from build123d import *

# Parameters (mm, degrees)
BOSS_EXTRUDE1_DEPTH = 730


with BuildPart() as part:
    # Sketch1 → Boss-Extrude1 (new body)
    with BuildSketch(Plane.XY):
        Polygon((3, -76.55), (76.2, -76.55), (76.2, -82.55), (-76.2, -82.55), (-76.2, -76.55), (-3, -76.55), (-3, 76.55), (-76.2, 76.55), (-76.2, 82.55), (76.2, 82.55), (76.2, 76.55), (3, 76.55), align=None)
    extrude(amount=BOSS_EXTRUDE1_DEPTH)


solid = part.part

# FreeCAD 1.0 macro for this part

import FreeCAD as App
import Part
import Sketcher

V = App.Vector
Q = App.Units.Quantity


def add_polygon(sketch, points):
    """Adds a closed chain of lines whose ends are joined by coincident constraints."""
    first, n = sketch.GeometryCount, len(points)
    for a, b in zip(points, points[1:] + points[:1]):
        sketch.addGeometry(Part.LineSegment(App.Vector(*a, 0), App.Vector(*b, 0)), False)
    for i in range(n):
        sketch.addConstraint(Sketcher.Constraint("Coincident", first + i, 2, first + (i + 1) % n, 1))

doc = App.newDocument("Part")
body = doc.addObject("PartDesign::Body", "Body")

# Sketch on XY plane
sketch1 = body.newObject("Sketcher::SketchObject", "Sketch")
sketch1.AttachmentSupport = (doc.getObject("XY_Plane"), [""])
sketch1.MapMode = "FlatFace"
add_polygon(sketch1, [(76.2, -76.55), (3, -76.55), (3, 76.55), (76.2, 76.55), (76.2, 82.55), (-76.2, 82.55), (-76.2, 76.55), (-3, 76.55), (-3, -76.55), (-76.2, -76.55), (-76.2, -82.55), (76.2, -82.55)])  # lines 0-11
sketch1.addConstraint([
    Sketcher.Constraint("Horizontal", 0),
    Sketcher.Constraint("Vertical", 1),
    Sketcher.Constraint("Horizontal", 2),
    Sketcher.Constraint("Vertical", 3),
    Sketcher.Constraint("Horizontal", 4),
    Sketcher.Constraint("Vertical", 5),
    Sketcher.Constraint("Horizontal", 6),
    Sketcher.Constraint("Vertical", 7),
    Sketcher.Constraint("Horizontal", 8),
    Sketcher.Constraint("Vertical", 9),
    Sketcher.Constraint("Horizontal", 10),
    Sketcher.Constraint("Vertical", 11),
    Sketcher.Constraint("Symmetric", 0, 2, 6, 2, -1, 1),
    Sketcher.Constraint("Symmetric", 2, 2, 8, 2, -1, 1),
    Sketcher.Constraint("Symmetric", 4, 2, 10, 2, -1, 1),
    Sketcher.Constraint("Symmetric", 2, 2, 5, 2, -2),
    Sketcher.Constraint("DistanceY", 3, 1, 3, 2, Q("6 mm")),
    Sketcher.Constraint("DistanceX", 0, 2, 0, 1, Q("73.2 mm")),
    Sketcher.Constraint("DistanceX", 4, 2, 4, 1, Q("152.4 mm")),
    Sketcher.Constraint("DistanceY", 1, 1, 1, 2, Q("153.1 mm")),
])
pad1 = body.newObject("PartDesign::Pad", "Pad")
pad1.Profile = sketch1
pad1.Length = 730

doc.recompute()
